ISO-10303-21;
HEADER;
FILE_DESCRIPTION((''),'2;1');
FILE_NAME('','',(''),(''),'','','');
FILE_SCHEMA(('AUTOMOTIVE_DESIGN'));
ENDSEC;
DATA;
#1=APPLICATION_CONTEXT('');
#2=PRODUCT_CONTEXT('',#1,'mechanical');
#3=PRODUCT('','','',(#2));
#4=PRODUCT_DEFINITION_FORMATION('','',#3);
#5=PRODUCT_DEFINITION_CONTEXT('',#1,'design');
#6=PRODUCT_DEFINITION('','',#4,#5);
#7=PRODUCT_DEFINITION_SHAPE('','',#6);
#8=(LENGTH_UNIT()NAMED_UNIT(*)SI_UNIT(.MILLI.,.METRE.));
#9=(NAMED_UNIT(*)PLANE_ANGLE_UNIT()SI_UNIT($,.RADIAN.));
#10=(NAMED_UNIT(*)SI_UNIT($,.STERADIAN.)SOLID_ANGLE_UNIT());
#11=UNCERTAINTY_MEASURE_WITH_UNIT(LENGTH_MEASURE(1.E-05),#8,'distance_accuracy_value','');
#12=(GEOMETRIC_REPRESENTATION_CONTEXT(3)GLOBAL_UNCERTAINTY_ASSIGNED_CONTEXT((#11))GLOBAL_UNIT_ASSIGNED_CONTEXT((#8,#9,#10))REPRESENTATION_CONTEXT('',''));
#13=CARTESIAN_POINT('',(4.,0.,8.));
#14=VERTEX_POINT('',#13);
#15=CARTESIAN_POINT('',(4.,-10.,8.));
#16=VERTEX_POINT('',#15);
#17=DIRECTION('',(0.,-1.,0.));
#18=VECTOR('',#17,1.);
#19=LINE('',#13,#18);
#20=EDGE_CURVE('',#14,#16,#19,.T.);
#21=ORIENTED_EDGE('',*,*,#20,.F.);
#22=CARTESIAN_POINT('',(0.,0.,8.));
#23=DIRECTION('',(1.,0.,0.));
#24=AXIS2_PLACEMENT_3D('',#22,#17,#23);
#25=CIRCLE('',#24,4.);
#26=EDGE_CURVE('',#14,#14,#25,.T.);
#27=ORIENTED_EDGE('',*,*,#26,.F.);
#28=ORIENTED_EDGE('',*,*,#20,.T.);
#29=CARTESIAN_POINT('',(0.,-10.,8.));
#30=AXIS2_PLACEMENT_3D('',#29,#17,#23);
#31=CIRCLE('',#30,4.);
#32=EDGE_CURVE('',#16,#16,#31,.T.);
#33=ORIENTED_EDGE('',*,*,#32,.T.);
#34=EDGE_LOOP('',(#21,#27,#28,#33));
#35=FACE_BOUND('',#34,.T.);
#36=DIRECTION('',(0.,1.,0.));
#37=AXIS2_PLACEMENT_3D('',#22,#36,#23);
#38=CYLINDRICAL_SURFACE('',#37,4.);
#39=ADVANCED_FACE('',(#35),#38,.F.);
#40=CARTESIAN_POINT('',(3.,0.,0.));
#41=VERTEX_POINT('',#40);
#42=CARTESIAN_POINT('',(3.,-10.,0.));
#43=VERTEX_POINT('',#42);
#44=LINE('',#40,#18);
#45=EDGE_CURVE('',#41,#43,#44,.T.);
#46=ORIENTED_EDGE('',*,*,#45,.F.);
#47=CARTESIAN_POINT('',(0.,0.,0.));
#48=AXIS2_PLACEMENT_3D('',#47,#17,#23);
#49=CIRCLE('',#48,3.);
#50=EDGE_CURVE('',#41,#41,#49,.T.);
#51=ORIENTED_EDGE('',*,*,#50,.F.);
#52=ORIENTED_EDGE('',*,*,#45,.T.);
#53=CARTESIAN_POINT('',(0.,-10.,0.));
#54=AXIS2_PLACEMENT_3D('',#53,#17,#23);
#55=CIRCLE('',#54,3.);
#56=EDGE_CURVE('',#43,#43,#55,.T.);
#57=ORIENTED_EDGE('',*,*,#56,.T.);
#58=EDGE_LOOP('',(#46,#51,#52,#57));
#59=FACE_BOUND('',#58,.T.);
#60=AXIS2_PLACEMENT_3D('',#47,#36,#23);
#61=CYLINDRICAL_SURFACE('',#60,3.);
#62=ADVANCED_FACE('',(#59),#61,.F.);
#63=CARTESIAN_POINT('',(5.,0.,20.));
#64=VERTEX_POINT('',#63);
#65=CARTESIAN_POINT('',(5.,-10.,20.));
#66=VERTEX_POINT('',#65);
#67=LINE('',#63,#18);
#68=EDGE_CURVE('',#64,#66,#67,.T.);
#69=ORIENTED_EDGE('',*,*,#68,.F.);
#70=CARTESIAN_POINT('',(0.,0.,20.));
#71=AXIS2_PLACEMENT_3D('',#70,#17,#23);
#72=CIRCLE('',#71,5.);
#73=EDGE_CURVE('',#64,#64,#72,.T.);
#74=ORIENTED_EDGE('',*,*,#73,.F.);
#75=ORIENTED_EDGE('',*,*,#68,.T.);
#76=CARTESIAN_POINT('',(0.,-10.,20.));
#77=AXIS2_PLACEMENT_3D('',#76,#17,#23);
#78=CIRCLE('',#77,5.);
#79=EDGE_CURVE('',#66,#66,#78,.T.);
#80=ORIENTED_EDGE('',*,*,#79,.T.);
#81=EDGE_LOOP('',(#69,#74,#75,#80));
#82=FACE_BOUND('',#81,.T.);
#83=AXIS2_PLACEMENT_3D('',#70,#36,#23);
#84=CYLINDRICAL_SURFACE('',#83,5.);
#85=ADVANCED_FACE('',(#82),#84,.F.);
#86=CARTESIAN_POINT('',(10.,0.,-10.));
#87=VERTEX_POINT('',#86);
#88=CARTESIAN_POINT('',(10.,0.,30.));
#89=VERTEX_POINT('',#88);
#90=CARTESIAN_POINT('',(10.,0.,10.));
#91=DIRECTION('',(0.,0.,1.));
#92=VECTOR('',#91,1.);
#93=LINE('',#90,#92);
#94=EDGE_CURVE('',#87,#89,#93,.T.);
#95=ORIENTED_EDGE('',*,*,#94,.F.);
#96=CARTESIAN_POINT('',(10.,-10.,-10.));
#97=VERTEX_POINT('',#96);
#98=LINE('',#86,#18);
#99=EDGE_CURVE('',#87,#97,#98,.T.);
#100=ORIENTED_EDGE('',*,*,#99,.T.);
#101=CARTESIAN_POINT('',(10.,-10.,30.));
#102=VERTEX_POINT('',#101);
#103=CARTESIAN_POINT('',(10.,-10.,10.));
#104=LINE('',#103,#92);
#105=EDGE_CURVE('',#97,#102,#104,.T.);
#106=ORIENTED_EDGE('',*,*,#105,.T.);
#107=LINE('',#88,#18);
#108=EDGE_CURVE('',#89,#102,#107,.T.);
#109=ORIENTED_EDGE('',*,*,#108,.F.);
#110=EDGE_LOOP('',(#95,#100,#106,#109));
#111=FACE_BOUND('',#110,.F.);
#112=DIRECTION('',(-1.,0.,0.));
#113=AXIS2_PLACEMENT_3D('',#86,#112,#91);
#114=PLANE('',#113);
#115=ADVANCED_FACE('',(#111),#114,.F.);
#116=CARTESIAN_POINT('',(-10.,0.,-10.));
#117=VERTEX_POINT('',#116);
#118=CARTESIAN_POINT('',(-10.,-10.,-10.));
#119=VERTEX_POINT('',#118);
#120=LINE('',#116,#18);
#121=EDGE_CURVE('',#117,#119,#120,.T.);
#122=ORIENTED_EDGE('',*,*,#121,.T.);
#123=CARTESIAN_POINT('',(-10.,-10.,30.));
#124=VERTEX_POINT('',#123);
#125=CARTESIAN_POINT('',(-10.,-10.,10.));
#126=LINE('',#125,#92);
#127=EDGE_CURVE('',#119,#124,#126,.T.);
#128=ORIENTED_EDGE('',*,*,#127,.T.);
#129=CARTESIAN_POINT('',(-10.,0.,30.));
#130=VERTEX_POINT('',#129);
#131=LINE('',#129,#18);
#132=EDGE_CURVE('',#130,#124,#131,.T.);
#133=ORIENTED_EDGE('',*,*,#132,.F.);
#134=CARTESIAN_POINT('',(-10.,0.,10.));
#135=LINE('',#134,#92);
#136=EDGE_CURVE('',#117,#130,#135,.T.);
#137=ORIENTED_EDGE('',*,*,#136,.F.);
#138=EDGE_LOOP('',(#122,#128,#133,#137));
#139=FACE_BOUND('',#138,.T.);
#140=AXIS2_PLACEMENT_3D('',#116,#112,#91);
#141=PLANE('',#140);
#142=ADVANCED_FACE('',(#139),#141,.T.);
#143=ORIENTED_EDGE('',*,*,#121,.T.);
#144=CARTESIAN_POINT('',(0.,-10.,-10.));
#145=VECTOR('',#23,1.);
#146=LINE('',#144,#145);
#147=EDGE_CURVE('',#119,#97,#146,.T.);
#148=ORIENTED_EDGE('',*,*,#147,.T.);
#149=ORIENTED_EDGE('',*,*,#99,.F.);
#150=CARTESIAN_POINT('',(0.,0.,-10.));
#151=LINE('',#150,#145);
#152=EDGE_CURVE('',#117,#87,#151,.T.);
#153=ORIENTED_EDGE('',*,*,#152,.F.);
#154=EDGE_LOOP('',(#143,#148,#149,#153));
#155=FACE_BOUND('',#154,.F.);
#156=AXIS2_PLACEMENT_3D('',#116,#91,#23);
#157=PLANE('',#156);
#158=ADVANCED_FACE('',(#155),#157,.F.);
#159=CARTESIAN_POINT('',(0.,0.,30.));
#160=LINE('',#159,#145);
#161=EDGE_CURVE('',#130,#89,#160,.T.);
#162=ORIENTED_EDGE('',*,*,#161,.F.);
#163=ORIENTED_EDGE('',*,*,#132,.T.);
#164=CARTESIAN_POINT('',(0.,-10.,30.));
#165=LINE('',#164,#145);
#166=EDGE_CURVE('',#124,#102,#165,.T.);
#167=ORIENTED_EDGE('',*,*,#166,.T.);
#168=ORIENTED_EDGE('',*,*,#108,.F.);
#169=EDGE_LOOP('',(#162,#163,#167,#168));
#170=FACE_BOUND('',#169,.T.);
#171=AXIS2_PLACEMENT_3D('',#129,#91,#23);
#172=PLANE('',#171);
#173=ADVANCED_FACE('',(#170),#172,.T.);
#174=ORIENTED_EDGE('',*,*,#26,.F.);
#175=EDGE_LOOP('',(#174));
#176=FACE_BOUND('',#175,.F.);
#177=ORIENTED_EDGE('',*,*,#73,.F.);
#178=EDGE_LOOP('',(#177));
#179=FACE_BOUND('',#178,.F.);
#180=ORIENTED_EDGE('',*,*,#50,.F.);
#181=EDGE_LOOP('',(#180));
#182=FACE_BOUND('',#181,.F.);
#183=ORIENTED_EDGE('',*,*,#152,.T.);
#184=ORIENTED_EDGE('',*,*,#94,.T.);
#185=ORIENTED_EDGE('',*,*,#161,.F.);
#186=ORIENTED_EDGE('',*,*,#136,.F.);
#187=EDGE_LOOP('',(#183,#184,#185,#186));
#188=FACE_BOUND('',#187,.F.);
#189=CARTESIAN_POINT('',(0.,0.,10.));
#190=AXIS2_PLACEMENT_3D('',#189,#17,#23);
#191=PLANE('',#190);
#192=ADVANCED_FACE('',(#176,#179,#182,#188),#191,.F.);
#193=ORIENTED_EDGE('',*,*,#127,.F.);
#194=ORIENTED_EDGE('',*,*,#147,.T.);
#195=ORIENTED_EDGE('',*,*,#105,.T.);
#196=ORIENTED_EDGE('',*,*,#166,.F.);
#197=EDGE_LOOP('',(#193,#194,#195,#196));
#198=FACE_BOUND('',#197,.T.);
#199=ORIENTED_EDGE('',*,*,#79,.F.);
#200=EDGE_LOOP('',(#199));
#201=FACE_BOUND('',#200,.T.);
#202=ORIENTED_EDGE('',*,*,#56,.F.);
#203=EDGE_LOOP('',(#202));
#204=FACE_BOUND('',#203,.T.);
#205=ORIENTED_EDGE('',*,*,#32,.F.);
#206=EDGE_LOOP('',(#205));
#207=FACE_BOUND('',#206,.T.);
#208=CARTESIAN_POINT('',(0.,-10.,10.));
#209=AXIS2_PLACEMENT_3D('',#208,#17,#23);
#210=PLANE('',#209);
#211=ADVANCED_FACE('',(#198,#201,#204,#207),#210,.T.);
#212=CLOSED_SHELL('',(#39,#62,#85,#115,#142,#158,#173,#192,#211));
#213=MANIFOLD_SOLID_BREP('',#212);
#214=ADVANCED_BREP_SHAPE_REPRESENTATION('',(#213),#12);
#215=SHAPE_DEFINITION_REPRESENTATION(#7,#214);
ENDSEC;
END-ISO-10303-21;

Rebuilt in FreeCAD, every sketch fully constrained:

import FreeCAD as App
import Part
import Sketcher


def add_polygon(sketch, points):
    """Adds a closed chain of lines whose ends are joined by coincident constraints."""
    first, n = sketch.GeometryCount, len(points)
    for a, b in zip(points, points[1:] + points[:1]):
        sketch.addGeometry(Part.LineSegment(App.Vector(*a, 0), App.Vector(*b, 0)), False)
    for i in range(n):
        sketch.addConstraint(Sketcher.Constraint("Coincident", first + i, 2, first + (i + 1) % n, 1))

doc = App.newDocument("Part")
body = doc.addObject("PartDesign::Body", "Body")

sketch1 = body.newObject("Sketcher::SketchObject", "Sketch")
sketch1.AttachmentSupport = (doc.getObject("XZ_Plane"), [""])
sketch1.MapMode = "FlatFace"
add_polygon(sketch1, [(-10, 30), (-10, -10), (10, -10), (10, 30)])
sketch1.addGeometry(Part.Circle(App.Vector(0, 0, 0), App.Vector(0, 0, 1), 3), False)
sketch1.addGeometry(Part.Circle(App.Vector(0, 8, 0), App.Vector(0, 0, 1), 4), False)
sketch1.addGeometry(Part.Circle(App.Vector(0, 20, 0), App.Vector(0, 0, 1), 5), False)
sketch1.addConstraint([
    Sketcher.Constraint("Vertical", 0),
    Sketcher.Constraint("Horizontal", 1),
    Sketcher.Constraint("Vertical", 2),
    Sketcher.Constraint("Horizontal", 3),
    Sketcher.Constraint("Coincident", 4, 3, -1, 1),
    Sketcher.Constraint("PointOnObject", 5, 3, -2),
    Sketcher.Constraint("PointOnObject", 6, 3, -2),
    Sketcher.Constraint("Diameter", 4, 6.0),
    Sketcher.Constraint("Diameter", 5, 8.0),
    Sketcher.Constraint("Diameter", 6, 10.0),
    Sketcher.Constraint("DistanceX", 1, 1, 1, 2, 20.0),
    Sketcher.Constraint("DistanceY", 0, 2, 0, 1, 40.0),
    Sketcher.Constraint("DistanceY", -1, 1, 5, 3, 8.0),
    Sketcher.Constraint("DistanceY", -1, 1, 6, 3, 20.0),
    Sketcher.Constraint("DistanceX", 0, 2, -1, 1, 10.0),
    Sketcher.Constraint("DistanceY", 0, 2, -1, 1, 10.0),
])
pad1 = body.newObject("PartDesign::Pad", "Pad")
pad1.Profile = sketch1
pad1.Length = 10

doc.recompute()
